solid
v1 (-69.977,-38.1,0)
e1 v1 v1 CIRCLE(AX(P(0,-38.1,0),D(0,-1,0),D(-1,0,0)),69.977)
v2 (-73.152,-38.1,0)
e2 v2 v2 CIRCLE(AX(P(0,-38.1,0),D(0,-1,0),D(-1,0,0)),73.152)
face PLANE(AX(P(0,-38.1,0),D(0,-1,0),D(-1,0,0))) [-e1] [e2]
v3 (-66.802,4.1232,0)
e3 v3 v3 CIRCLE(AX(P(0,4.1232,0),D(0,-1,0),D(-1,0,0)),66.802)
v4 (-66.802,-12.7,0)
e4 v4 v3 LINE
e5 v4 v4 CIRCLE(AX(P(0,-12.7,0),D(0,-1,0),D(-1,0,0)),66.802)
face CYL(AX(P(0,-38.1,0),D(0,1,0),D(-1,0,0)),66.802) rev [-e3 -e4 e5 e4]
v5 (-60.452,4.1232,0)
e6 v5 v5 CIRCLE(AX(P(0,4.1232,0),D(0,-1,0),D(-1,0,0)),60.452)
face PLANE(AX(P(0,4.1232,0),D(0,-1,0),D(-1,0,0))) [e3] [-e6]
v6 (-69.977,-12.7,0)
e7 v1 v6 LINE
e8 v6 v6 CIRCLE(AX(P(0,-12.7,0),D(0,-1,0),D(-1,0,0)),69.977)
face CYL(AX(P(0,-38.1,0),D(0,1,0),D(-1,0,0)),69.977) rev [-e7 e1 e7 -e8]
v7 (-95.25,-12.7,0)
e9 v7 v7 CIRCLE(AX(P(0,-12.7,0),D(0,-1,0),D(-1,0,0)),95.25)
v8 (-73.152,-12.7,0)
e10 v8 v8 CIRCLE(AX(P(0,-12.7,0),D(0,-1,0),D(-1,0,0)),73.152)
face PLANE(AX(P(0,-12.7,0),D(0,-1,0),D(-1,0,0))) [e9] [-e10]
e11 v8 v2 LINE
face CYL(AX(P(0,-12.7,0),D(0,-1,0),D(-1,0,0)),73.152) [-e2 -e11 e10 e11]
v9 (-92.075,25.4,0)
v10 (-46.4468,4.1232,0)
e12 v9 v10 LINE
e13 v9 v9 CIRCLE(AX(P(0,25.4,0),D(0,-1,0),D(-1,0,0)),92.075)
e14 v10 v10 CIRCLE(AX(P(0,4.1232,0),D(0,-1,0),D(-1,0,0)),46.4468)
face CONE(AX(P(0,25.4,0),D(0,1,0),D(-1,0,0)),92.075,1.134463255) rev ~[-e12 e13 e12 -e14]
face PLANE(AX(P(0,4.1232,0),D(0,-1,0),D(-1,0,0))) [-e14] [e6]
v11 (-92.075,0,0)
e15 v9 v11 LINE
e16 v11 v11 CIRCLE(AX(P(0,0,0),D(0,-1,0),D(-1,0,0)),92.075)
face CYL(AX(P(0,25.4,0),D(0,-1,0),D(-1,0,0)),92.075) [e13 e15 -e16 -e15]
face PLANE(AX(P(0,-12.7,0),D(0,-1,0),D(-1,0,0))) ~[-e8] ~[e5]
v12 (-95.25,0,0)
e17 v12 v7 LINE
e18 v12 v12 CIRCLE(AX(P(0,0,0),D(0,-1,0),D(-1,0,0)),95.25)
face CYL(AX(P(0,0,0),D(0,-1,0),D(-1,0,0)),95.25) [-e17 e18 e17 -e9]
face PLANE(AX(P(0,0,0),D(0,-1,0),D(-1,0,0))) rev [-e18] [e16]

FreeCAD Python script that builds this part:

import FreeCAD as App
import Part
import Sketcher
Q = App.Units.Quantity


def add_polygon(sketch, points):
    """Adds a closed chain of lines whose ends are joined by coincident constraints."""
    first, n = sketch.GeometryCount, len(points)
    for a, b in zip(points, points[1:] + points[:1]):
        sketch.addGeometry(Part.LineSegment(App.Vector(*a, 0), App.Vector(*b, 0)), False)
    for i in range(n):
        sketch.addConstraint(Sketcher.Constraint("Coincident", first + i, 2, first + (i + 1) % n, 1))

doc = App.newDocument("Part")
params = doc.addObject("Spreadsheet::Sheet", "Params")
for row, (alias, value) in enumerate([
    ("sketch1_height", "1 in"),
    ("sketch1_height2", "0.5 in"),
    ("sketch1_width", "0.125 in"),
    ("sketch1_width2", "0.87 in"),
    ("revolution_angle", "360 deg"),
], start=1):
    params.set(f"A{row}", alias)
    params.set(f"B{row}", "=" + value)
    params.setAlias(f"B{row}", alias)

body = doc.addObject("PartDesign::Body", "Body")

sketch1 = doc.addObject("Sketcher::SketchObject", "Sketch")
body.addObject(sketch1)
sketch1.AttachmentSupport = (doc.XY_Plane, [""])
sketch1.MapMode = "FlatFace"
add_polygon(sketch1, [(-92.1, 25.4), (-92.1, 0), (-95.2, 0), (-95.2, -12.7), (-73.2, -12.7), (-73.2, -38.1), (-70, -38.1), (-70, -12.7), (-66.8, -12.7), (-66.8, 4.1), (-46.4, 4.1)])
sketch1.addConstraint(Sketcher.Constraint("Vertical", 0))
sketch1.addConstraint(Sketcher.Constraint("Horizontal", 1))
sketch1.addConstraint(Sketcher.Constraint("Vertical", 2))
sketch1.addConstraint(Sketcher.Constraint("Horizontal", 3))
sketch1.addConstraint(Sketcher.Constraint("Vertical", 4))
sketch1.addConstraint(Sketcher.Constraint("Horizontal", 5))
sketch1.addConstraint(Sketcher.Constraint("Vertical", 6))
sketch1.addConstraint(Sketcher.Constraint("Horizontal", 7))
sketch1.addConstraint(Sketcher.Constraint("Vertical", 8))
sketch1.addConstraint(Sketcher.Constraint("Horizontal", 9))
sketch1.addConstraint(Sketcher.Constraint("PointOnObject", 0, 2, -1))
sketch1.addConstraint(Sketcher.Constraint("Horizontal", 3, 2, 6, 2))
sketch1.addConstraint(Sketcher.Constraint("Equal", 1, 5))
sketch1.addConstraint(Sketcher.Constraint("Equal", 5, 7))
sketch1.addConstraint(Sketcher.Constraint("Equal", 0, 4))
sketch1.addConstraint(Sketcher.Constraint("DistanceY", 0, 2, 0, 1, Q("1 in")))
sketch1.addConstraint(Sketcher.Constraint("DistanceY", 2, 2, 2, 1, Q("0.5 in")))
sketch1.addConstraint(Sketcher.Constraint("DistanceX", 1, 2, 1, 1, Q("0.125 in")))
sketch1.addConstraint(Sketcher.Constraint("DistanceX", 1, 2, -1, 1, Q("3.75 in")))
sketch1.addConstraint(Sketcher.Constraint("Angle", 10, Q("155 deg")))
sketch1.addConstraint(Sketcher.Constraint("DistanceX", 3, 1, 3, 2, Q("0.87 in")))
sketch1.addConstraint(Sketcher.Constraint("DistanceX", 9, 1, 9, 2, 20.3552))
sketch1.setExpression("Constraints[26]", "Params.sketch1_height")
sketch1.setExpression("Constraints[27]", "Params.sketch1_height2")
sketch1.setExpression("Constraints[28]", "Params.sketch1_width")
sketch1.setExpression("Constraints[31]", "Params.sketch1_width2")
revolution = doc.addObject("PartDesign::Revolution", "Revolution")
body.addObject(revolution)
revolution.Profile = sketch1
revolution.ReferenceAxis = (sketch1, ["V_Axis"])
revolution.setExpression("Angle", "Params.revolution_angle")

doc.recompute()
